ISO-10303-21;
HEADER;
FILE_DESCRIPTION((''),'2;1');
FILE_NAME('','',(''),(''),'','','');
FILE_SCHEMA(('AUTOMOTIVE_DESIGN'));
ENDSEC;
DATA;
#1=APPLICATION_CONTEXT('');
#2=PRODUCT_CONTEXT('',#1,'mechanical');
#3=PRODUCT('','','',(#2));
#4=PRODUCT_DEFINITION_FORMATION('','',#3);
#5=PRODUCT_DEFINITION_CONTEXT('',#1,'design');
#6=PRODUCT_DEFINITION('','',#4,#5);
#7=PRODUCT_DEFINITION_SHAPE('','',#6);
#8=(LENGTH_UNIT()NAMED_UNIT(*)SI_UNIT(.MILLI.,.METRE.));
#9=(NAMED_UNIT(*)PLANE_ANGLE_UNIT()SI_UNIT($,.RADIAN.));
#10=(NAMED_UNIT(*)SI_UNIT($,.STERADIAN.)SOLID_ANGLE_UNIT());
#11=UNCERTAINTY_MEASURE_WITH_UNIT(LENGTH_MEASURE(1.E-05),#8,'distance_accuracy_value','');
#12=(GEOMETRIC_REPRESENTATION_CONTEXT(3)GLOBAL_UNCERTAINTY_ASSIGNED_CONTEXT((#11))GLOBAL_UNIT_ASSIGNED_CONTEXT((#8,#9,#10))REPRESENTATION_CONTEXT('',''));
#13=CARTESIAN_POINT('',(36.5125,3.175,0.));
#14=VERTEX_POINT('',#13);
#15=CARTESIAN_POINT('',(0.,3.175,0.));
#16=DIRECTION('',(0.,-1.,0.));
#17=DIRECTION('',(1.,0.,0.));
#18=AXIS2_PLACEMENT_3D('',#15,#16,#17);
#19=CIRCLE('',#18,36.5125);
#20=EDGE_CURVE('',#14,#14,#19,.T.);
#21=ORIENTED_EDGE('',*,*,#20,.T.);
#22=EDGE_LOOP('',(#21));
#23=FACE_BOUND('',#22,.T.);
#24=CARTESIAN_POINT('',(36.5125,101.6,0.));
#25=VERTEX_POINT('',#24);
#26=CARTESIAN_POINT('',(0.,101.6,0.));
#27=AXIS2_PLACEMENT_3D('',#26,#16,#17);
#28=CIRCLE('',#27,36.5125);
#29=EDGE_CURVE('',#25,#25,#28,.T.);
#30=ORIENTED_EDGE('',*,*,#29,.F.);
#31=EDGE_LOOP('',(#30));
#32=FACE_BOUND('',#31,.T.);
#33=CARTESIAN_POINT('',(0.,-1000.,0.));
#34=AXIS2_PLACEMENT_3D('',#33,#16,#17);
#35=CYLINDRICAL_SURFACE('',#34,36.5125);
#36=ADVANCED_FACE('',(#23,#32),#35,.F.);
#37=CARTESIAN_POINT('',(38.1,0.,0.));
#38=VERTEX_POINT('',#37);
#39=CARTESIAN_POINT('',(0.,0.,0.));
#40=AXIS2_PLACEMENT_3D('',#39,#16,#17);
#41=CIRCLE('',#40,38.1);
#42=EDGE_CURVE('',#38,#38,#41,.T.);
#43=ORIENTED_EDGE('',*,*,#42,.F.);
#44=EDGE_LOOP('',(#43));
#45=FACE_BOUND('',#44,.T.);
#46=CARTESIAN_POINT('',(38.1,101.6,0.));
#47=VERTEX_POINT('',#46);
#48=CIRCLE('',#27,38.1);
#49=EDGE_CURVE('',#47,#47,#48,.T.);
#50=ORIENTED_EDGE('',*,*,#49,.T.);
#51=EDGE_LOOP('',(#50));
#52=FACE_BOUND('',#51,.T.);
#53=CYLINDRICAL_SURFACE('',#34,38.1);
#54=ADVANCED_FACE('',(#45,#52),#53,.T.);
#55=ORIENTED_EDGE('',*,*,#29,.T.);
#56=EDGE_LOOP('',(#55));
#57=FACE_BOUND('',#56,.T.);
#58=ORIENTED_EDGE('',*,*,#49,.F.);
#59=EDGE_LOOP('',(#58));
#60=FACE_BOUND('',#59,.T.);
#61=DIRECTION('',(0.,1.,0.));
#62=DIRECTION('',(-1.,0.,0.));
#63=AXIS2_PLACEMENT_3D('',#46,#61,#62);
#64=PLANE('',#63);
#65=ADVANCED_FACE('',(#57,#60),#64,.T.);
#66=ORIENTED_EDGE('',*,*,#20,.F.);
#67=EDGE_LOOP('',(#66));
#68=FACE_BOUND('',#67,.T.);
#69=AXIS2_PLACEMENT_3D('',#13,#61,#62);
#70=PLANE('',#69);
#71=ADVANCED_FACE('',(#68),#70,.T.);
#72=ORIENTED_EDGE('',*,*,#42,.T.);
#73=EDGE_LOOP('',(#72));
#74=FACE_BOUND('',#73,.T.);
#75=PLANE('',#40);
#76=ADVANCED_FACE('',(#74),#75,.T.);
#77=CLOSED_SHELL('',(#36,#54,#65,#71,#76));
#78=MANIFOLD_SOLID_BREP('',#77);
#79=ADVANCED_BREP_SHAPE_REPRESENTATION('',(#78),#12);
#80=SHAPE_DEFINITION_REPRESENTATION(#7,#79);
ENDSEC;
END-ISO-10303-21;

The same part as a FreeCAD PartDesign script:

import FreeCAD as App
import Part
import Sketcher
Q = App.Units.Quantity

doc = App.newDocument("Part")
body = doc.addObject("PartDesign::Body", "Body")

# Sketch on XY plane
sketch1 = doc.addObject("Sketcher::SketchObject", "Sketch")
body.addObject(sketch1)
sketch1.AttachmentSupport = (doc.XY_Plane, [""])
sketch1.MapMode = "FlatFace"
sketch1.addGeometry([
    Part.LineSegment(App.Vector(36.5, 101.6, 0), App.Vector(36.5, 3.2, 0)),  # 0
    Part.LineSegment(App.Vector(36.5, 3.2, 0), App.Vector(0, 3.2, 0)),  # 1
    Part.LineSegment(App.Vector(0, 3.2, 0), App.Vector(0, 0, 0)),  # 2
    Part.LineSegment(App.Vector(0, 0, 0), App.Vector(38.1, 0, 0)),  # 3
    Part.LineSegment(App.Vector(38.1, 0, 0), App.Vector(38.1, 101.6, 0)),  # 4
    Part.LineSegment(App.Vector(38.1, 101.6, 0), App.Vector(36.5, 101.6, 0)),  # 5
], False)
sketch1.addConstraint([
    Sketcher.Constraint("Coincident", 0, 2, 1, 1),
    Sketcher.Constraint("Coincident", 1, 2, 2, 1),
    Sketcher.Constraint("Coincident", 2, 2, 3, 1),
    Sketcher.Constraint("Coincident", 3, 2, 4, 1),
    Sketcher.Constraint("Coincident", 4, 2, 5, 1),
    Sketcher.Constraint("Coincident", 5, 2, 0, 1),
    Sketcher.Constraint("Vertical", 0),
    Sketcher.Constraint("Horizontal", 1),
    Sketcher.Constraint("Vertical", 2),
    Sketcher.Constraint("Horizontal", 3),
    Sketcher.Constraint("Vertical", 4),
    Sketcher.Constraint("Horizontal", 5),
    Sketcher.Constraint("Coincident", 2, 2, -1, 1),
    Sketcher.Constraint("DistanceY", 4, 1, 4, 2, Q("4 in")),
    Sketcher.Constraint("DistanceX", 3, 1, 3, 2, Q("1.5 in")),
    Sketcher.Constraint("DistanceX", 1, 2, 1, 1, Q("1.4375 in")),
    Sketcher.Constraint("DistanceY", 0, 2, 0, 1, Q("3.875 in")),
])
revolution = doc.addObject("PartDesign::Revolution", "Revolution")
body.addObject(revolution)
revolution.Profile = sketch1
revolution.ReferenceAxis = (sketch1, ["V_Axis"])
revolution.Angle = 360

doc.recompute()
